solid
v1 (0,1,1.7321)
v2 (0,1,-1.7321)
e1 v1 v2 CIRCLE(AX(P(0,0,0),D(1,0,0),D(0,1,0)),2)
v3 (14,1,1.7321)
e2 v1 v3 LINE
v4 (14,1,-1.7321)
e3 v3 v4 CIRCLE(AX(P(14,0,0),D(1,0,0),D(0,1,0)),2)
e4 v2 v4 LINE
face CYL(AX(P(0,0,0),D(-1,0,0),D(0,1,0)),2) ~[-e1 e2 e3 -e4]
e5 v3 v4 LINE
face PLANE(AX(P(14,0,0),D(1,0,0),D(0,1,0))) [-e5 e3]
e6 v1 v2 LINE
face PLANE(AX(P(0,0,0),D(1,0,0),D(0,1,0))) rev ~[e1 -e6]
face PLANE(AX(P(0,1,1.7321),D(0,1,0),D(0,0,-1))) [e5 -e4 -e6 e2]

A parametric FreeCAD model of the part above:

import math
import FreeCAD as App
import Part
import Sketcher
Q = App.Units.Quantity

doc = App.newDocument("Part")
body = doc.addObject("PartDesign::Body", "Body")

sketch1 = body.newObject("Sketcher::SketchObject", "Sketch")
sketch1.AttachmentSupport = (doc.getObject("YZ_Plane"), [""])
sketch1.MapMode = "FlatFace"
sketch1.addGeometry(Part.LineSegment(App.Vector(1, -1.7, 0), App.Vector(1, 1.7, 0)), False)
sketch1.addGeometry(Part.ArcOfCircle(Part.Circle(App.Vector(0, 0, 0), App.Vector(0, 0, 1), 2), math.radians(60), math.radians(300)), False)
sketch1.addConstraint(Sketcher.Constraint("Coincident", 0, 1, 1, 2))
sketch1.addConstraint(Sketcher.Constraint("Coincident", 1, 1, 0, 2))
sketch1.addConstraint(Sketcher.Constraint("Vertical", 0))
sketch1.addConstraint(Sketcher.Constraint("Coincident", 1, 3, -1, 1))
sketch1.addConstraint(Sketcher.Constraint("Radius", 1, Q("2 mm")))
sketch1.addConstraint(Sketcher.Constraint("DistanceX", -1, 1, 0, 1, Q("1 mm")))
pad1 = body.newObject("PartDesign::Pad", "Pad")
pad1.Profile = sketch1
pad1.Length = 14

doc.recompute()
